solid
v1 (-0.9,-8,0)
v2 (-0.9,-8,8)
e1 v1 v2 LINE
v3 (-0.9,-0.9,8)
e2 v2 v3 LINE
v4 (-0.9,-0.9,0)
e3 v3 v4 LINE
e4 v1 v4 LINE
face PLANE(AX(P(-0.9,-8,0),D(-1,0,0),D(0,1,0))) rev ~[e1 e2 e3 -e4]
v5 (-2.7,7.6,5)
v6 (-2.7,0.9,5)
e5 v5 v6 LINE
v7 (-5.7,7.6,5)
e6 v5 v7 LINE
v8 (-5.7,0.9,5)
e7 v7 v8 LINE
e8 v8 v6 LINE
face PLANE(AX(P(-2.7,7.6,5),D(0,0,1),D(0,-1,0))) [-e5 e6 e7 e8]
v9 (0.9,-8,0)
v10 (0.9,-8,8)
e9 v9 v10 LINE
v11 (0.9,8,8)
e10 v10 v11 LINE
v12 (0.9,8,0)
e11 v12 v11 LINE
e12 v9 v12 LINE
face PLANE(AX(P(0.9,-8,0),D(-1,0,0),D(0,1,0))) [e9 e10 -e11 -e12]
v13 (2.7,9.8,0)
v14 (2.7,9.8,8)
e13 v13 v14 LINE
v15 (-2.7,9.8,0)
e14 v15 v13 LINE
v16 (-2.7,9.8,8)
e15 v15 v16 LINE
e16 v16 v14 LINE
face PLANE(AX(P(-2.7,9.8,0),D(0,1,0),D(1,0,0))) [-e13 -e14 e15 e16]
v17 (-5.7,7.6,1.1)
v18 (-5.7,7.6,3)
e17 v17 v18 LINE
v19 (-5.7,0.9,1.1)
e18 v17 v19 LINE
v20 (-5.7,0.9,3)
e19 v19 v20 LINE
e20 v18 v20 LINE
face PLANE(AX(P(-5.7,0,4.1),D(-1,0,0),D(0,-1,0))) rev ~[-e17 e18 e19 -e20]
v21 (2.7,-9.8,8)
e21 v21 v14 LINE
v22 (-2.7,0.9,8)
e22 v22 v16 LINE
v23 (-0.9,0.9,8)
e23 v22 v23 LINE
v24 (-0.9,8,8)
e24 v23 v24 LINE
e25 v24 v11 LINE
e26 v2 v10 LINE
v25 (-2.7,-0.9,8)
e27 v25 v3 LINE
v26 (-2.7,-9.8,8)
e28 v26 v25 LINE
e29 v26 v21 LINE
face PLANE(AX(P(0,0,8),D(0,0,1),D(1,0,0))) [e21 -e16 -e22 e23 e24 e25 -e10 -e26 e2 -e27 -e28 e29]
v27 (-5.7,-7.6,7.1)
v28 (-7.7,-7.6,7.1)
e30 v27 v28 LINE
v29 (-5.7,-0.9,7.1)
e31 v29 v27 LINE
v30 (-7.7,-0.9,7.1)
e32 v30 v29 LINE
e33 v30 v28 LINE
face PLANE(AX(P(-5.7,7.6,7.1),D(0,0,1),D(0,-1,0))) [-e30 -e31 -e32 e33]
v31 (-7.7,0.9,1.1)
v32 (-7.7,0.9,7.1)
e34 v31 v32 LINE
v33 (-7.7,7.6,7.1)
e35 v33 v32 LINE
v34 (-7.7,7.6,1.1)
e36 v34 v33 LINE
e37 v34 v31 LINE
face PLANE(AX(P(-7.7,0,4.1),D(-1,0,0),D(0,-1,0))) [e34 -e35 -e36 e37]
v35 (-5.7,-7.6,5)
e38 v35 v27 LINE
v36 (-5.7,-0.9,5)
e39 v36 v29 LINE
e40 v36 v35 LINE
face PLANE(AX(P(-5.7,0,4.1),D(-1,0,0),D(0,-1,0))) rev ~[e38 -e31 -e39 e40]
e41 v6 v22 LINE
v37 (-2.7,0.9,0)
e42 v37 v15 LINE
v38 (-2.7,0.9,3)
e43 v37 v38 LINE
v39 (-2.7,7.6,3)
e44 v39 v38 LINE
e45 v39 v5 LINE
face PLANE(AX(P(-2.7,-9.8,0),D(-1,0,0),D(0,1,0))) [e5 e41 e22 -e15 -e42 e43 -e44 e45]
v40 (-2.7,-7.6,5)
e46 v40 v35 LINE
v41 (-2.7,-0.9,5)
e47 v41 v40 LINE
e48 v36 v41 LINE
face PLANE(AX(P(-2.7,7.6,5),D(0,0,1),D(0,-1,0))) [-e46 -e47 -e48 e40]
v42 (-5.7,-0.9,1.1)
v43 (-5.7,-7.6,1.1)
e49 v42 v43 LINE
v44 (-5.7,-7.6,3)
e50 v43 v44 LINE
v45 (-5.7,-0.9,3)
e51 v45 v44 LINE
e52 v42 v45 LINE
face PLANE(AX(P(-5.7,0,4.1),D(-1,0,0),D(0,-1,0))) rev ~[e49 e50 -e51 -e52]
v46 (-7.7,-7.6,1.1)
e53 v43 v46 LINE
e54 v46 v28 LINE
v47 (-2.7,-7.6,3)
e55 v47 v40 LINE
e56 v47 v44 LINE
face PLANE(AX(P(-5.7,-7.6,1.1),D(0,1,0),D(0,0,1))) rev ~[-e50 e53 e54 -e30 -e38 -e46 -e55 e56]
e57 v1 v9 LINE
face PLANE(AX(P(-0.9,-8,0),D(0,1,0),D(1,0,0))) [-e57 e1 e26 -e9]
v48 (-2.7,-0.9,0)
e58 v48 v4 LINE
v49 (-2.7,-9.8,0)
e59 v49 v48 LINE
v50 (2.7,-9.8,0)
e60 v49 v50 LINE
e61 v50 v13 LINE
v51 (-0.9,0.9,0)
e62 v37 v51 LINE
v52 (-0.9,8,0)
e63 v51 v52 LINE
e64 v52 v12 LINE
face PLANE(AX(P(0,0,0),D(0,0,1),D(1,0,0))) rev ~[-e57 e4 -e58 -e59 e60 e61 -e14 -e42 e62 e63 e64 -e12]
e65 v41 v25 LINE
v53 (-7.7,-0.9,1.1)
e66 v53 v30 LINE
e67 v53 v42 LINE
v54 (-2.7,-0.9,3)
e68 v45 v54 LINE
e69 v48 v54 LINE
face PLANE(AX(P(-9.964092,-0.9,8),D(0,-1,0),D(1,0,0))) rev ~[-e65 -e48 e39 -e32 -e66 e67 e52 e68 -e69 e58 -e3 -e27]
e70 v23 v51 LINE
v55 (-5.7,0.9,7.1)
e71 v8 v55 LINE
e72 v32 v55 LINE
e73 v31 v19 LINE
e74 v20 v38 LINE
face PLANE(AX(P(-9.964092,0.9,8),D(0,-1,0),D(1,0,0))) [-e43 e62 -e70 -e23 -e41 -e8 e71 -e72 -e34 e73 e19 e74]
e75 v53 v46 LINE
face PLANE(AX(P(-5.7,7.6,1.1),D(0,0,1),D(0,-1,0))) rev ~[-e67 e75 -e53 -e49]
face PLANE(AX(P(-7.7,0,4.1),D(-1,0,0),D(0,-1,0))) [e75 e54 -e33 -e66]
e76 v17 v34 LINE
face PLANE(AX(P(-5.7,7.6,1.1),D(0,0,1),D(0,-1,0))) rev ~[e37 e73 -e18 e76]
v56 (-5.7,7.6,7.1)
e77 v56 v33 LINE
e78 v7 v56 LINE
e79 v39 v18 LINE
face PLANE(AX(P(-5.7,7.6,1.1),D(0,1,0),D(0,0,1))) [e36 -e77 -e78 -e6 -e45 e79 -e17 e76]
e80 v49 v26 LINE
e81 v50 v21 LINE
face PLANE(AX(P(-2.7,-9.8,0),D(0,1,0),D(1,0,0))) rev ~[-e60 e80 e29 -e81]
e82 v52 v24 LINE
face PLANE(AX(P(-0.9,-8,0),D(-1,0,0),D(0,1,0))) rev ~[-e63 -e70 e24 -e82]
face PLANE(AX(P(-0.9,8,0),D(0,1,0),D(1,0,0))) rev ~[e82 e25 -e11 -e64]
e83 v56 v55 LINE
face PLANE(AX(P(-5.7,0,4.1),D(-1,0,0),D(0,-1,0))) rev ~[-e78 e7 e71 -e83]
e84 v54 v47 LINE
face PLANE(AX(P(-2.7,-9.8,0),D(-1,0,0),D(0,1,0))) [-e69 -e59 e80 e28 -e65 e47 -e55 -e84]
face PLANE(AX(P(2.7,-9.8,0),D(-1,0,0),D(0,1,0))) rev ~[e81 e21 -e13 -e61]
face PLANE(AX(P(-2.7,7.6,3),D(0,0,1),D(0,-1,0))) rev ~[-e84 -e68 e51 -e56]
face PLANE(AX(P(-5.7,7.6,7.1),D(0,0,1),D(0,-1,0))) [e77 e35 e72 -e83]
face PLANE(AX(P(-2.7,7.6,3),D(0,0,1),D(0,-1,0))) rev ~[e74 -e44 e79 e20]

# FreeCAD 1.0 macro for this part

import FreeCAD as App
import Part
import Sketcher
from FreeCAD import Vector

doc = App.newDocument("Part")
body = doc.addObject("PartDesign::Body", "Body")

sketch1 = body.newObject("Sketcher::SketchObject", "Sketch")
sketch1.AttachmentSupport = (doc.getObject("XY_Plane"), [""])
sketch1.MapMode = "FlatFace"
sketch1.addGeometry([
    Part.LineSegment(Vector(-2.7, 9.8, 0), Vector(-2.7, -9.8, 0)),
    Part.LineSegment(Vector(-2.7, -9.8, 0), Vector(2.7, -9.8, 0)),
    Part.LineSegment(Vector(2.7, -9.8, 0), Vector(2.7, 9.8, 0)),
    Part.LineSegment(Vector(2.7, 9.8, 0), Vector(-2.7, 9.8, 0)),
    Part.LineSegment(Vector(0.9, -8, 0), Vector(-0.9, -8, 0)),
    Part.LineSegment(Vector(-0.9, -8, 0), Vector(-0.9, 8, 0)),
    Part.LineSegment(Vector(-0.9, 8, 0), Vector(0.9, 8, 0)),
    Part.LineSegment(Vector(0.9, 8, 0), Vector(0.9, -8, 0)),
], False)
sketch1.addConstraint([
    Sketcher.Constraint("Coincident", 0, 2, 1, 1),
    Sketcher.Constraint("Coincident", 1, 2, 2, 1),
    Sketcher.Constraint("Coincident", 2, 2, 3, 1),
    Sketcher.Constraint("Coincident", 3, 2, 0, 1),
    Sketcher.Constraint("Coincident", 4, 2, 5, 1),
    Sketcher.Constraint("Coincident", 5, 2, 6, 1),
    Sketcher.Constraint("Coincident", 6, 2, 7, 1),
    Sketcher.Constraint("Coincident", 7, 2, 4, 1),
    Sketcher.Constraint("Vertical", 0),
    Sketcher.Constraint("Horizontal", 1),
    Sketcher.Constraint("Vertical", 2),
    Sketcher.Constraint("Horizontal", 3),
    Sketcher.Constraint("Horizontal", 4),
    Sketcher.Constraint("Vertical", 5),
    Sketcher.Constraint("Horizontal", 6),
    Sketcher.Constraint("Vertical", 7),
    Sketcher.Constraint("Symmetric", 0, 2, 2, 2, -1, 1),
    Sketcher.Constraint("Symmetric", 4, 2, 6, 2, -1, 1),
    Sketcher.Constraint("DistanceY", 5, 1, 5, 2, 16.0),
    Sketcher.Constraint("DistanceX", 1, 1, 1, 2, 5.4),
    Sketcher.Constraint("DistanceX", 4, 2, 4, 1, 1.8),
    Sketcher.Constraint("DistanceY", 0, 2, 0, 1, 19.6),
])
pad1 = body.newObject("PartDesign::Pad", "Pad")
pad1.Profile = sketch1
pad1.Length = 8

sketch2 = body.newObject("Sketcher::SketchObject", "Sketch001")
sketch2.AttachmentSupport = (doc.getObject("YZ_Plane"), [""])
sketch2.MapMode = "FlatFace"
sketch2.AttachmentOffset = App.Placement(Vector(0, 0, -2.7), App.Rotation())
sketch2.addGeometry([
    Part.LineSegment(Vector(7.6, 5, 0), Vector(7.6, 3, 0)),
    Part.LineSegment(Vector(7.6, 3, 0), Vector(-7.6, 3, 0)),
    Part.LineSegment(Vector(-7.6, 3, 0), Vector(-7.6, 5, 0)),
    Part.LineSegment(Vector(-7.6, 5, 0), Vector(7.6, 5, 0)),
], False)
sketch2.addConstraint([
    Sketcher.Constraint("Coincident", 0, 2, 1, 1),
    Sketcher.Constraint("Coincident", 1, 2, 2, 1),
    Sketcher.Constraint("Coincident", 2, 2, 3, 1),
    Sketcher.Constraint("Coincident", 3, 2, 0, 1),
    Sketcher.Constraint("Vertical", 0),
    Sketcher.Constraint("Horizontal", 1),
    Sketcher.Constraint("Vertical", 2),
    Sketcher.Constraint("Horizontal", 3),
    Sketcher.Constraint("DistanceY", 0, 2, 0, 1, 2.0),
    Sketcher.Constraint("DistanceX", 1, 2, 1, 1, 15.2),
    Sketcher.Constraint("DistanceY", -1, 1, 0, 2, 3.0),
    Sketcher.Constraint("DistanceX", -1, 1, 0, 2, 7.6),
])
pad2 = body.newObject("PartDesign::Pad", "Pad001")
pad2.Profile = sketch2
pad2.Length = 3
pad2.Reversed = True

sketch3 = body.newObject("Sketcher::SketchObject", "Sketch002")
sketch3.AttachmentSupport = (doc.getObject("YZ_Plane"), [""])
sketch3.MapMode = "FlatFace"
sketch3.AttachmentOffset = App.Placement(Vector(0, 0, -5.7), App.Rotation())
sketch3.addGeometry([
    Part.LineSegment(Vector(7.6, 7.1, 0), Vector(7.6, 1.1, 0)),
    Part.LineSegment(Vector(7.6, 1.1, 0), Vector(-7.6, 1.1, 0)),
    Part.LineSegment(Vector(-7.6, 1.1, 0), Vector(-7.6, 7.1, 0)),
    Part.LineSegment(Vector(-7.6, 7.1, 0), Vector(7.6, 7.1, 0)),
], False)
sketch3.addConstraint([
    Sketcher.Constraint("Coincident", 0, 2, 1, 1),
    Sketcher.Constraint("Coincident", 1, 2, 2, 1),
    Sketcher.Constraint("Coincident", 2, 2, 3, 1),
    Sketcher.Constraint("Coincident", 3, 2, 0, 1),
    Sketcher.Constraint("Vertical", 0),
    Sketcher.Constraint("Horizontal", 1),
    Sketcher.Constraint("Vertical", 2),
    Sketcher.Constraint("Horizontal", 3),
    Sketcher.Constraint("DistanceY", 0, 2, 0, 1, 6.0),
    Sketcher.Constraint("DistanceX", 1, 2, 1, 1, 15.2),
    Sketcher.Constraint("DistanceX", -1, 1, 0, 2, 7.6),
    Sketcher.Constraint("DistanceY", -1, 1, 0, 2, 1.1),
])
pad3 = body.newObject("PartDesign::Pad", "Pad002")
pad3.Profile = sketch3
pad3.Length = 2
pad3.Reversed = True

sketch4 = body.newObject("Sketcher::SketchObject", "Sketch003")
sketch4.AttachmentSupport = (doc.getObject("XY_Plane"), [""])
sketch4.MapMode = "FlatFace"
sketch4.AttachmentOffset = App.Placement(Vector(0, 0, 8), App.Rotation())
sketch4.addGeometry([
    Part.LineSegment(Vector(-9.964092, 0.9, 0), Vector(-9.964092, -0.9, 0)),
    Part.LineSegment(Vector(-9.964092, -0.9, 0), Vector(-0.9, -0.9, 0)),
    Part.LineSegment(Vector(-0.9, -0.9, 0), Vector(-0.9, 0.9, 0)),
    Part.LineSegment(Vector(-0.9, 0.9, 0), Vector(-9.964092, 0.9, 0)),
], False)
sketch4.addConstraint([
    Sketcher.Constraint("Coincident", 0, 2, 1, 1),
    Sketcher.Constraint("Coincident", 1, 2, 2, 1),
    Sketcher.Constraint("Coincident", 2, 2, 3, 1),
    Sketcher.Constraint("Coincident", 3, 2, 0, 1),
    Sketcher.Constraint("Vertical", 0),
    Sketcher.Constraint("Horizontal", 1),
    Sketcher.Constraint("Vertical", 2),
    Sketcher.Constraint("Horizontal", 3),
    Sketcher.Constraint("DistanceY", 0, 2, 0, 1, 1.8),
    Sketcher.Constraint("DistanceY", 0, 2, -1, 1, 0.9),
    Sketcher.Constraint("DistanceX", 1, 2, -1, 1, 0.9),
    Sketcher.Constraint("DistanceX", 1, 1, 1, 2, 9.064092),
])
pocket1 = body.newObject("PartDesign::Pocket", "Pocket")
pocket1.Profile = sketch4
pocket1.Type = "ThroughAll"

doc.recompute()
